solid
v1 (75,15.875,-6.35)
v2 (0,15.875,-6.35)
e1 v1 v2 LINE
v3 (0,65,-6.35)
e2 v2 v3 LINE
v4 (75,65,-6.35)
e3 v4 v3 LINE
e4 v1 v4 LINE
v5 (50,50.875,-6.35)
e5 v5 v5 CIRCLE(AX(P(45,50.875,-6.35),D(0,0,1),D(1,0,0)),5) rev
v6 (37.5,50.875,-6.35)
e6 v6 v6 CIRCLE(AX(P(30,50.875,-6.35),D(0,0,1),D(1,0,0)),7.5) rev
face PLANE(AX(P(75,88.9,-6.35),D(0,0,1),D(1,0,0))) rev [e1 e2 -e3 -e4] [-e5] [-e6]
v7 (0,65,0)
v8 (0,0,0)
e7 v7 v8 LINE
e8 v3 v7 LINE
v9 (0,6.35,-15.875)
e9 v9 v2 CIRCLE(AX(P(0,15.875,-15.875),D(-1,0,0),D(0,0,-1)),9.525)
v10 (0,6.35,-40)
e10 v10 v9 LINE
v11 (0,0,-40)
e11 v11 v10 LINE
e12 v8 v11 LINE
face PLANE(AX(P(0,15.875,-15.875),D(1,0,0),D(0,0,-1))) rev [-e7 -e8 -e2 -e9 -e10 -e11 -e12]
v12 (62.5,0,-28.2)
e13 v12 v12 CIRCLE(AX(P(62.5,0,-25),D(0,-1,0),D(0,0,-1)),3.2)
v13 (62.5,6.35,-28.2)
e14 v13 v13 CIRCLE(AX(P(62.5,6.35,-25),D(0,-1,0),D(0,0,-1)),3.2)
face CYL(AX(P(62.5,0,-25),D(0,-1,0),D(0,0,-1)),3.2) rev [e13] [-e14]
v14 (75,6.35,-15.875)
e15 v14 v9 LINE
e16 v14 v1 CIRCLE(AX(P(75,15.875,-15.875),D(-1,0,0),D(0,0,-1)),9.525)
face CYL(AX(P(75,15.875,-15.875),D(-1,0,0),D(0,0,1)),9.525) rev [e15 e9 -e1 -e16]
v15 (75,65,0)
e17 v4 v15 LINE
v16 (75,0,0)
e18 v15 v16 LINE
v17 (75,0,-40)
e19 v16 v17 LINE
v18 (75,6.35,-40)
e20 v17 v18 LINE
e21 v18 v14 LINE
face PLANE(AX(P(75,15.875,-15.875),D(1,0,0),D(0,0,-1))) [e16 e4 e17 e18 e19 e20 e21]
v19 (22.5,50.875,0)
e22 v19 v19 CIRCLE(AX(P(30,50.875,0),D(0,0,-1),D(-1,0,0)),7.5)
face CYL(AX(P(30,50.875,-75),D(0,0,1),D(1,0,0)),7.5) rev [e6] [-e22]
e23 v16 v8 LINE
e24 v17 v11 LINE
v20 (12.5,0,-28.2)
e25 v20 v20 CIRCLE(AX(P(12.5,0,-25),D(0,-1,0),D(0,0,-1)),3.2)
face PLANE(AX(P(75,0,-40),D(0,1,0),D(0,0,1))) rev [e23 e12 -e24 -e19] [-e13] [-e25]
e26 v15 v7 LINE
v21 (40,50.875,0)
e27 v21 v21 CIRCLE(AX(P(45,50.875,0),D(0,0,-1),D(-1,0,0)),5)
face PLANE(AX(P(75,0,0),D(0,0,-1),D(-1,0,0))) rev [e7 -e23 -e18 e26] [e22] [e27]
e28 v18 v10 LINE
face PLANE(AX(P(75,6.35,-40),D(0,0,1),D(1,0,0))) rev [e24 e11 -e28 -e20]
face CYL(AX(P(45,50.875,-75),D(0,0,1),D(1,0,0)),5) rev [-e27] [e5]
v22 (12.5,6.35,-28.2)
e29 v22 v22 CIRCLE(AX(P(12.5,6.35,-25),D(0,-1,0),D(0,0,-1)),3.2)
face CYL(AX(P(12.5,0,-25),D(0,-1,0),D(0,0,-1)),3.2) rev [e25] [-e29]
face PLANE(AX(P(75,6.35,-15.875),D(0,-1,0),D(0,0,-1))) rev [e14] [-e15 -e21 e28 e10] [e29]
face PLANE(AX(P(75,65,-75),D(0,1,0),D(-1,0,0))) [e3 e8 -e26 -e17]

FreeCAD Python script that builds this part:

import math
import FreeCAD as App
import Part
import Sketcher

V = App.Vector


def add_polygon(sketch, points):
    """Adds a closed chain of lines whose ends are joined by coincident constraints."""
    first, n = sketch.GeometryCount, len(points)
    for a, b in zip(points, points[1:] + points[:1]):
        sketch.addGeometry(Part.LineSegment(App.Vector(*a, 0), App.Vector(*b, 0)), False)
    for i in range(n):
        sketch.addConstraint(Sketcher.Constraint("Coincident", first + i, 2, first + (i + 1) % n, 1))

doc = App.newDocument("Part")
body = doc.addObject("PartDesign::Body", "Body")

sketch1 = body.newObject("Sketcher::SketchObject", "Sketch")
sketch1.AttachmentSupport = (doc.getObject("YZ_Plane"), [""])
sketch1.MapMode = "FlatFace"
sketch1.addGeometry([
    Part.LineSegment(V(89, 0, 0), V(0, 0, 0)),
    Part.LineSegment(V(0, 0, 0), V(0, -40, 0)),
    Part.LineSegment(V(0, -40, 0), V(6, -40, 0)),
    Part.LineSegment(V(6, -40, 0), V(6, -16, 0)),
    Part.ArcOfCircle(Part.Circle(V(16, -16, 0), V(0, 0, 1), 10), math.radians(90), math.radians(180)),
    Part.LineSegment(V(16, -6, 0), V(89, -6, 0)),
    Part.LineSegment(V(89, -6, 0), V(89, 0, 0)),
], False)
sketch1.addConstraint([
    Sketcher.Constraint("Coincident", 0, 2, 1, 1),
    Sketcher.Constraint("Coincident", 1, 2, 2, 1),
    Sketcher.Constraint("Coincident", 2, 2, 3, 1),
    Sketcher.Constraint("Tangent", 3, 2, 4, 2),
    Sketcher.Constraint("Tangent", 4, 1, 5, 1),
    Sketcher.Constraint("Coincident", 5, 2, 6, 1),
    Sketcher.Constraint("Coincident", 6, 2, 0, 1),
    Sketcher.Constraint("Horizontal", 0),
    Sketcher.Constraint("Vertical", 1),
    Sketcher.Constraint("Horizontal", 2),
    Sketcher.Constraint("Vertical", 3),
    Sketcher.Constraint("Horizontal", 5),
    Sketcher.Constraint("Vertical", 6),
    Sketcher.Constraint("Coincident", 0, 2, -1, 1),
    Sketcher.Constraint("Equal", 2, 6),
    Sketcher.Constraint("DistanceY", 1, 2, 1, 1, 40.0),
    Sketcher.Constraint("DistanceX", 0, 2, 0, 1, 88.9),
    Sketcher.Constraint("Radius", 4, 9.525),
    Sketcher.Constraint("DistanceX", 2, 1, 2, 2, 6.35),
])
pad1 = body.newObject("PartDesign::Pad", "Pad")
pad1.Profile = sketch1
pad1.Length = 75

sketch2 = body.newObject("Sketcher::SketchObject", "Sketch001")
sketch2.AttachmentSupport = (doc.getObject("XY_Plane"), [""])
sketch2.MapMode = "FlatFace"
sketch2.addGeometry(Part.Circle(V(30, 51, 0), V(0, 0, 1), 8), False)
sketch2.addGeometry(Part.Circle(V(45, 51, 0), V(0, 0, 1), 5), False)
add_polygon(sketch2, [(75, 89), (75, 65), (0, 65), (0, 89)])
sketch2.addConstraint([
    Sketcher.Constraint("Vertical", 2),
    Sketcher.Constraint("Horizontal", 3),
    Sketcher.Constraint("Vertical", 4),
    Sketcher.Constraint("Horizontal", 5),
    Sketcher.Constraint("PointOnObject", 3, 2, -2),
    Sketcher.Constraint("Horizontal", 0, 3, 1, 3),
    Sketcher.Constraint("Diameter", 0, 15.0),
    Sketcher.Constraint("Diameter", 1, 10.0),
    Sketcher.Constraint("DistanceX", 3, 2, 3, 1, 75.0),
    Sketcher.Constraint("DistanceY", 2, 2, 2, 1, 23.9),
    Sketcher.Constraint("DistanceX", -1, 1, 0, 3, 30.0),
    Sketcher.Constraint("DistanceX", -1, 1, 1, 3, 45.0),
    Sketcher.Constraint("DistanceY", -1, 1, 2, 2, 65.0),
    Sketcher.Constraint("DistanceY", -1, 1, 0, 3, 50.875),
])
pocket1 = body.newObject("PartDesign::Pocket", "Pocket")
pocket1.Profile = sketch2
pocket1.Length = 75

sketch3 = body.newObject("Sketcher::SketchObject", "Sketch002")
sketch3.AttachmentSupport = (doc.getObject("XZ_Plane"), [""])
sketch3.MapMode = "FlatFace"
sketch3.addGeometry([
    Part.Circle(V(12.5, -25, 0), V(0, 0, 1), 3.2),
    Part.Circle(V(62.5, -25, 0), V(0, 0, 1), 3.2),
], False)
sketch3.addConstraint([
    Sketcher.Constraint("Equal", 0, 1),
    Sketcher.Constraint("Horizontal", 0, 3, 1, 3),
    Sketcher.Constraint("Diameter", 0, 6.4),
    Sketcher.Constraint("DistanceY", 0, 3, -1, 1, 25.0),
    Sketcher.Constraint("DistanceX", 0, 3, 1, 3, 50.0),
    Sketcher.Constraint("DistanceX", -1, 1, 0, 3, 12.5),
])
doc.recompute()
hole = body.newObject("PartDesign::Hole", "Hole")
hole.Profile = sketch3
hole.ThreadType = "None"
hole.Diameter = 6.4
hole.DepthType = "ThroughAll"

doc.recompute()
